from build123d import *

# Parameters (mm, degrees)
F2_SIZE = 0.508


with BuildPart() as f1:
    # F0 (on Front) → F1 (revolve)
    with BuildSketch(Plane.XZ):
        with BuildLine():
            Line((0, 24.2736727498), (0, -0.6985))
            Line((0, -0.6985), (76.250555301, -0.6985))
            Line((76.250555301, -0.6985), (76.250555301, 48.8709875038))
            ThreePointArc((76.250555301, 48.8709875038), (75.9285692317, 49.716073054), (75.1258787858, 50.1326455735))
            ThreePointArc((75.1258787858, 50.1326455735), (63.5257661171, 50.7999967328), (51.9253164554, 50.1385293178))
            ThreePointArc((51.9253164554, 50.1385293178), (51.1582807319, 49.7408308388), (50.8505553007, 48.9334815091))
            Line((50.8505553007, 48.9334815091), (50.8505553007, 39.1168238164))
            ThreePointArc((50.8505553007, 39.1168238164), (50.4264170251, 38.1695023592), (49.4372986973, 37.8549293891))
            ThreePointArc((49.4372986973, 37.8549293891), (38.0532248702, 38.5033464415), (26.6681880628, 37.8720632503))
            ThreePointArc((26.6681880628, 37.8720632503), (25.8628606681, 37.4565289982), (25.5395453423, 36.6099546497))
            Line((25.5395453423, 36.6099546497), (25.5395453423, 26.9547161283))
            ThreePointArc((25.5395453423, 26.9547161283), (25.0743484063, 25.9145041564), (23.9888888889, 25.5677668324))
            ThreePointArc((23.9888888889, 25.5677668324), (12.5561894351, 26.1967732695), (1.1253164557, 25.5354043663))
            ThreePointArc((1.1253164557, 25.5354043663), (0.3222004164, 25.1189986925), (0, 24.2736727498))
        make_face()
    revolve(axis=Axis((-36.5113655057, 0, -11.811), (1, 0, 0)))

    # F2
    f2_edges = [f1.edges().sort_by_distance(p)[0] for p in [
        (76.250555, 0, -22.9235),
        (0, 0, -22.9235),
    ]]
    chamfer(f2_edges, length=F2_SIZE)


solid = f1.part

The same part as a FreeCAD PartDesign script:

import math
import FreeCAD as App
import Part
import Sketcher
Q = App.Units.Quantity


def edges_at(feature, points):
    """Names of the edges that pass closest to the given points."""
    edges = feature.Shape.Edges
    near = lambda p: min(range(len(edges)), key=lambda i: edges[i].distToShape(Part.Vertex(*p))[0])
    return sorted({f"Edge{near(p) + 1}" for p in points})

doc = App.newDocument("Part")
body = doc.addObject("PartDesign::Body", "Body")

# Sketch on XZ plane
sketch1 = body.newObject("Sketcher::SketchObject", "Sketch")
sketch1.AttachmentSupport = (doc.getObject("XZ_Plane"), [""])
sketch1.MapMode = "FlatFace"
sketch1.addGeometry(Part.LineSegment(App.Vector(0, 24.273673, 0), App.Vector(0, -0.6985, 0)), False)
sketch1.addGeometry(Part.LineSegment(App.Vector(0, -0.6985, 0), App.Vector(76.250555, -0.6985, 0)), False)
sketch1.addGeometry(Part.LineSegment(App.Vector(76.250555, -0.6985, 0), App.Vector(76.250555, 48.870988, 0)), False)
sketch1.addGeometry(Part.ArcOfCircle(Part.Circle(App.Vector(74.980555, 48.870988, 0), App.Vector(0, 0, 1), 1.27), math.radians(0), math.radians(83.429369)), False)
sketch1.addGeometry(Part.ArcOfCircle(Part.Circle(App.Vector(63.5, -50.8, 0), App.Vector(0, 0, 1), 101.6), math.radians(83.429369), math.radians(96.54157)), False)
sketch1.addGeometry(Part.ArcOfCircle(Part.Circle(App.Vector(52.0635, 48.933482, 0), App.Vector(0, 0, 1), 1.212945), math.radians(96.54157), math.radians(180)), False)
sketch1.addGeometry(Part.LineSegment(App.Vector(50.850555, 48.933482, 0), App.Vector(50.850555, 39.116824, 0)), False)
sketch1.addGeometry(Part.ArcOfCircle(Part.Circle(App.Vector(49.580555, 39.116824, 0), App.Vector(0, 0, 1), 1.27), math.radians(-96.476776), math.radians(0)), False)
sketch1.addGeometry(Part.ArcOfCircle(Part.Circle(App.Vector(37.97677, -63.096625, 0), App.Vector(0, 0, 1), 101.6), math.radians(83.523224), math.radians(96.390545)), False)
sketch1.addGeometry(Part.ArcOfCircle(Part.Circle(App.Vector(26.809545, 36.609955, 0), App.Vector(0, 0, 1), 1.27), math.radians(96.390545), math.radians(180)), False)
sketch1.addGeometry(Part.LineSegment(App.Vector(25.539545, 36.609955, 0), App.Vector(25.539545, 26.954716, 0)), False)
sketch1.addGeometry(Part.ArcOfCircle(Part.Circle(App.Vector(24.143955, 26.954716, 0), App.Vector(0, 0, 1), 1.395591), math.radians(-96.37937), math.radians(0)), False)
sketch1.addGeometry(Part.ArcOfCircle(Part.Circle(App.Vector(12.7, -75.403125, 0), App.Vector(0, 0, 1), 101.6), math.radians(83.62063), math.radians(96.54157)), False)
sketch1.addGeometry(Part.ArcOfCircle(Part.Circle(App.Vector(1.27, 24.273673, 0), App.Vector(0, 0, 1), 1.27), math.radians(96.54157), math.radians(180)), False)
sketch1.addGeometry(Part.LineSegment(App.Vector(0, -11.811, 0), App.Vector(76.250555, -11.811, 0)), True)  # axis
sketch1.addConstraint(Sketcher.Constraint("Coincident", 0, 2, 1, 1))
sketch1.addConstraint(Sketcher.Constraint("Coincident", 1, 2, 2, 1))
sketch1.addConstraint(Sketcher.Constraint("Coincident", 2, 2, 3, 1))
sketch1.addConstraint(Sketcher.Constraint("Coincident", 3, 2, 4, 1))
sketch1.addConstraint(Sketcher.Constraint("Coincident", 4, 2, 5, 1))
sketch1.addConstraint(Sketcher.Constraint("Coincident", 5, 2, 6, 1))
sketch1.addConstraint(Sketcher.Constraint("Coincident", 6, 2, 7, 2))
sketch1.addConstraint(Sketcher.Constraint("Coincident", 7, 1, 8, 1))
sketch1.addConstraint(Sketcher.Constraint("Coincident", 8, 2, 9, 1))
sketch1.addConstraint(Sketcher.Constraint("Coincident", 9, 2, 10, 1))
sketch1.addConstraint(Sketcher.Constraint("Coincident", 10, 2, 11, 2))
sketch1.addConstraint(Sketcher.Constraint("Coincident", 11, 1, 12, 1))
sketch1.addConstraint(Sketcher.Constraint("Coincident", 12, 2, 13, 1))
sketch1.addConstraint(Sketcher.Constraint("Coincident", 13, 2, 0, 1))
sketch1.addConstraint(Sketcher.Constraint("Vertical", 0))
sketch1.addConstraint(Sketcher.Constraint("Horizontal", 1))
sketch1.addConstraint(Sketcher.Constraint("Vertical", 2))
sketch1.addConstraint(Sketcher.Constraint("Vertical", 6))
sketch1.addConstraint(Sketcher.Constraint("Vertical", 10))
sketch1.addConstraint(Sketcher.Constraint("Horizontal", 14))
sketch1.addConstraint(Sketcher.Constraint("PointOnObject", 0, 2, -2))
sketch1.addConstraint(Sketcher.Constraint("PointOnObject", 14, 1, -2))
sketch1.addConstraint(Sketcher.Constraint("Radius", 4, Q("4 in")))
sketch1.addConstraint(Sketcher.Constraint("Radius", 8, Q("4 in")))
sketch1.addConstraint(Sketcher.Constraint("Radius", 12, Q("4 in")))
sketch1.addConstraint(Sketcher.Constraint("Radius", 3, Q("0.05 in")))
sketch1.addConstraint(Sketcher.Constraint("Radius", 7, Q("0.05 in")))
sketch1.addConstraint(Sketcher.Constraint("Radius", 9, Q("0.05 in")))
sketch1.addConstraint(Sketcher.Constraint("Radius", 13, Q("0.05 in")))
sketch1.addConstraint(Sketcher.Constraint("DistanceY", 4, 3, -1, 1, Q("2 in")))
sketch1.addConstraint(Sketcher.Constraint("DistanceX", 7, 3, 3, 3, Q("1 in")))
sketch1.addConstraint(Sketcher.Constraint("DistanceX", 12, 3, 4, 3, Q("2 in")))
sketch1.addConstraint(Sketcher.Constraint("DistanceX", 6, 2, 14, 2, Q("1 in")))
sketch1.addConstraint(Sketcher.Constraint("DistanceX", -1, 1, 4, 3, Q("2.5 in")))
sketch1.addConstraint(Sketcher.Constraint("DistanceY", 14, 1, -1, 1, Q("0.465 in")))
sketch1.addConstraint(Sketcher.Constraint("Radius", 11, 1.395591))
sketch1.addConstraint(Sketcher.Constraint("DistanceY", 14, 1, 0, 2, Q("0.4375 in")))
sketch1.addConstraint(Sketcher.Constraint("Radius", 5, 1.212945))
sketch1.addConstraint(Sketcher.Constraint("DistanceY", 10, 2, 10, 1, 9.655239))
sketch1.addConstraint(Sketcher.Constraint("DistanceX", -1, 1, 5, 3, 52.0635))
sketch1.addConstraint(Sketcher.Constraint("DistanceX", -1, 1, 7, 1, 49.437299))
sketch1.addConstraint(Sketcher.Constraint("DistanceX", 11, 3, 7, 3, 25.436601))
sketch1.addConstraint(Sketcher.Constraint("DistanceY", 12, 3, 8, 3, 12.3065))
sketch1.addConstraint(Sketcher.Constraint("DistanceY", 7, 1, 4, 2, 12.2836))
sketch1.addConstraint(Sketcher.Constraint("DistanceX", 11, 1, 8, 2, 2.679299))
sketch1.addConstraint(Sketcher.Constraint("DistanceY", 0, 2, 0, 1, 24.972173))
sketch1.addConstraint(Sketcher.Constraint("DistanceY", 2, 1, 2, 2, 49.569488))
sketch1.addConstraint(Sketcher.Constraint("DistanceY", 6, 2, 6, 1, 9.816658))
sketch1.addConstraint(Sketcher.Constraint("DistanceX", -1, 1, 8, 3, 37.97677))
sketch1.addConstraint(Sketcher.Constraint("DistanceX", -1, 1, 3, 2, 75.125879))
sketch1.addConstraint(Sketcher.Constraint("DistanceY", -1, 1, 4, 2, 50.138529))
sketch1.addConstraint(Sketcher.Constraint("DistanceY", -1, 1, 5, 2, 48.933482))
sketch1.addConstraint(Sketcher.Constraint("DistanceX", -1, 1, 8, 2, 26.668188))
sketch1.addConstraint(Sketcher.Constraint("DistanceY", 9, 2, 8, 2, 1.262109))
sketch1.addConstraint(Sketcher.Constraint("DistanceY", 13, 3, 12, 2, 1.261732))
revolution = body.newObject("PartDesign::Revolution", "Revolution")
revolution.Profile = sketch1
revolution.ReferenceAxis = (sketch1, ["Axis0"])
revolution.Angle = 360
doc.recompute()

chamfer = body.newObject("PartDesign::Chamfer", "Chamfer")
chamfer.Base = (revolution, edges_at(revolution, [(76.251, 0, -22.924), (0, 0, -22.924)]))
chamfer.Size = Q("0.02 in")

doc.recompute()
